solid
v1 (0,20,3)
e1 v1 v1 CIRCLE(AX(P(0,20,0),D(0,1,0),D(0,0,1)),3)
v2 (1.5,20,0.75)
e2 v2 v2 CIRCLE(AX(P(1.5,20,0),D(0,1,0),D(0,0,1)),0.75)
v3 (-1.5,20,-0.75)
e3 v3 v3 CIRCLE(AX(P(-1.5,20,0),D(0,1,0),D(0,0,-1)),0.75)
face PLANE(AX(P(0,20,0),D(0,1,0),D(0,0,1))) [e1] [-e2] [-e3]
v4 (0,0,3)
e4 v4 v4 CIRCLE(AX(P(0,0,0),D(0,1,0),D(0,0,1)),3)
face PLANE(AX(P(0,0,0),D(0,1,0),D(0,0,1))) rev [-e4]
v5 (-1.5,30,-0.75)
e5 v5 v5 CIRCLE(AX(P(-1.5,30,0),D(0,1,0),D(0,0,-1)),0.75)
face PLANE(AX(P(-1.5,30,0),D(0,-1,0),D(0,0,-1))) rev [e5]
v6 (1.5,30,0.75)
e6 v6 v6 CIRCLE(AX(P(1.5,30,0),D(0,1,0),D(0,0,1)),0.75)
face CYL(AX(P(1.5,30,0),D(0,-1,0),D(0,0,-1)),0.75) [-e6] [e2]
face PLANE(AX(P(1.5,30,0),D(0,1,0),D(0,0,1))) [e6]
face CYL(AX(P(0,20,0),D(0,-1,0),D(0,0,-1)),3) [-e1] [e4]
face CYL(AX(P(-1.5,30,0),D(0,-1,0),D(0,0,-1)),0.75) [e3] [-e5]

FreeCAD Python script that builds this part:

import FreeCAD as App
import Part
import Sketcher

V = App.Vector

doc = App.newDocument("Part")
body = doc.addObject("PartDesign::Body", "Body")

# Sketch on XZ plane
sketch1 = body.newObject("Sketcher::SketchObject", "Sketch")
sketch1.AttachmentSupport = (doc.getObject("XZ_Plane"), [""])
sketch1.MapMode = "FlatFace"
sketch1.addGeometry(Part.Circle(V(0, 0, 0), V(0, 0, 1), 3), False)
sketch1.addConstraint([
    Sketcher.Constraint("Coincident", 0, 3, -1, 1),
    Sketcher.Constraint("Diameter", 0, 6.0),
])
pad1 = body.newObject("PartDesign::Pad", "Pad")
pad1.Profile = sketch1
pad1.Length = 20
pad1.Reversed = True

# Sketch on XZ plane
sketch2 = body.newObject("Sketcher::SketchObject", "Sketch001")
sketch2.AttachmentSupport = (doc.getObject("XZ_Plane"), [""])
sketch2.MapMode = "FlatFace"
sketch2.AttachmentOffset = App.Placement(V(0, 0, -20), App.Rotation())
sketch2.addGeometry([
    Part.Circle(V(1.5, 0, 0), V(0, 0, 1), 0.8),
    Part.Circle(V(-1.5, 0, 0), V(0, 0, 1), 0.8),
], False)
sketch2.addConstraint([
    Sketcher.Constraint("Equal", 0, 1),
    Sketcher.Constraint("Symmetric", 0, 3, 1, 3, -1, 1),
    Sketcher.Constraint("PointOnObject", 0, 3, -1),
    Sketcher.Constraint("Diameter", 0, 1.5),
    Sketcher.Constraint("DistanceX", 1, 3, 0, 3, 3.0),
])
pad2 = body.newObject("PartDesign::Pad", "Pad001")
pad2.Profile = sketch2
pad2.Length = 10
pad2.Reversed = True

doc.recompute()
